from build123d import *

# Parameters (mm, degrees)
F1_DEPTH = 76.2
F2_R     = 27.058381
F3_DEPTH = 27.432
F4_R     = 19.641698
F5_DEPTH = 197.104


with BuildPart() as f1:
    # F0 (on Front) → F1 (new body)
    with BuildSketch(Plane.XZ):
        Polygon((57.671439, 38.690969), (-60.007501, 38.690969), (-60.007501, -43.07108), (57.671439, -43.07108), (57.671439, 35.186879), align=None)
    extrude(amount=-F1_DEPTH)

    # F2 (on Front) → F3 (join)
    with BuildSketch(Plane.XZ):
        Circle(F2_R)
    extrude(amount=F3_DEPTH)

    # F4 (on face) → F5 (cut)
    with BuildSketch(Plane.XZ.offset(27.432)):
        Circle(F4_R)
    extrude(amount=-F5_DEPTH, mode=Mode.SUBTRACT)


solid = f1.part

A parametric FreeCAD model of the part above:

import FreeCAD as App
import Part
import Sketcher
from FreeCAD import Vector
Q = App.Units.Quantity

doc = App.newDocument("Part")
params = doc.addObject("Spreadsheet::Sheet", "Params")
for row, (alias, value) in enumerate([
    ("pad1_length", "3 in"),
    ("pad2_length", "1.08 in"),
    ("pocket1_length", "7.76 in"),
], start=1):
    params.set(f"A{row}", alias)
    params.set(f"B{row}", "=" + value)
    params.setAlias(f"B{row}", alias)

body = doc.addObject("PartDesign::Body", "Body")

# Sketch on XZ plane
sketch1 = body.newObject("Sketcher::SketchObject", "Sketch")
sketch1.AttachmentSupport = (doc.getObject("XZ_Plane"), [""])
sketch1.MapMode = "FlatFace"
sketch1.addGeometry(Part.LineSegment(Vector(58, 39, 0), Vector(-60, 39, 0)), False)
sketch1.addGeometry(Part.LineSegment(Vector(-60, 39, 0), Vector(-60, -43, 0)), False)
sketch1.addGeometry(Part.LineSegment(Vector(-60, -43, 0), Vector(58, -43, 0)), False)
sketch1.addGeometry(Part.LineSegment(Vector(58, -43, 0), Vector(58, 39, 0)), False)
sketch1.addConstraint(Sketcher.Constraint("Coincident", 0, 2, 1, 1))
sketch1.addConstraint(Sketcher.Constraint("Coincident", 1, 2, 2, 1))
sketch1.addConstraint(Sketcher.Constraint("Coincident", 2, 2, 3, 1))
sketch1.addConstraint(Sketcher.Constraint("Coincident", 3, 2, 0, 1))
sketch1.addConstraint(Sketcher.Constraint("Horizontal", 0))
sketch1.addConstraint(Sketcher.Constraint("Vertical", 1))
sketch1.addConstraint(Sketcher.Constraint("Horizontal", 2))
sketch1.addConstraint(Sketcher.Constraint("Vertical", 3))
sketch1.addConstraint(Sketcher.Constraint("DistanceX", 0, 2, -1, 1, Q("2.3625 in")))
sketch1.addConstraint(Sketcher.Constraint("DistanceX", 0, 2, 0, 1, Q("117.67894 mm")))
sketch1.addConstraint(Sketcher.Constraint("DistanceY", 1, 2, 1, 1, Q("81.762049 mm")))
sketch1.addConstraint(Sketcher.Constraint("DistanceY", -1, 1, 0, 2, Q("38.690969 mm")))
pad1 = body.newObject("PartDesign::Pad", "Pad")
pad1.Profile = sketch1
pad1.setExpression("Length", "Params.pad1_length")
pad1.Reversed = True

# Sketch on XZ plane
sketch2 = body.newObject("Sketcher::SketchObject", "Sketch001")
sketch2.AttachmentSupport = (doc.getObject("XZ_Plane"), [""])
sketch2.MapMode = "FlatFace"
sketch2.addGeometry(Part.Circle(Vector(0, 0, 0), Vector(0, 0, 1), 27), False)
sketch2.addConstraint(Sketcher.Constraint("Coincident", 0, 3, -1, 1))
sketch2.addConstraint(Sketcher.Constraint("Diameter", 0, Q("54.116762 mm")))
pad2 = body.newObject("PartDesign::Pad", "Pad001")
pad2.Profile = sketch2
pad2.setExpression("Length", "Params.pad2_length")

# Sketch on XZ plane
sketch3 = body.newObject("Sketcher::SketchObject", "Sketch002")
sketch3.AttachmentSupport = (doc.getObject("XZ_Plane"), [""])
sketch3.MapMode = "FlatFace"
sketch3.AttachmentOffset = App.Placement(Vector(0, 0, 1.08 * 25.4), App.Rotation())
sketch3.addGeometry(Part.Circle(Vector(0, 0, 0), Vector(0, 0, 1), 20), False)
sketch3.addConstraint(Sketcher.Constraint("Coincident", 0, 3, -1, 1))
sketch3.addConstraint(Sketcher.Constraint("Diameter", 0, Q("39.283396 mm")))
pocket1 = body.newObject("PartDesign::Pocket", "Pocket")
pocket1.Profile = sketch3
pocket1.setExpression("Length", "Params.pocket1_length")

doc.recompute()
